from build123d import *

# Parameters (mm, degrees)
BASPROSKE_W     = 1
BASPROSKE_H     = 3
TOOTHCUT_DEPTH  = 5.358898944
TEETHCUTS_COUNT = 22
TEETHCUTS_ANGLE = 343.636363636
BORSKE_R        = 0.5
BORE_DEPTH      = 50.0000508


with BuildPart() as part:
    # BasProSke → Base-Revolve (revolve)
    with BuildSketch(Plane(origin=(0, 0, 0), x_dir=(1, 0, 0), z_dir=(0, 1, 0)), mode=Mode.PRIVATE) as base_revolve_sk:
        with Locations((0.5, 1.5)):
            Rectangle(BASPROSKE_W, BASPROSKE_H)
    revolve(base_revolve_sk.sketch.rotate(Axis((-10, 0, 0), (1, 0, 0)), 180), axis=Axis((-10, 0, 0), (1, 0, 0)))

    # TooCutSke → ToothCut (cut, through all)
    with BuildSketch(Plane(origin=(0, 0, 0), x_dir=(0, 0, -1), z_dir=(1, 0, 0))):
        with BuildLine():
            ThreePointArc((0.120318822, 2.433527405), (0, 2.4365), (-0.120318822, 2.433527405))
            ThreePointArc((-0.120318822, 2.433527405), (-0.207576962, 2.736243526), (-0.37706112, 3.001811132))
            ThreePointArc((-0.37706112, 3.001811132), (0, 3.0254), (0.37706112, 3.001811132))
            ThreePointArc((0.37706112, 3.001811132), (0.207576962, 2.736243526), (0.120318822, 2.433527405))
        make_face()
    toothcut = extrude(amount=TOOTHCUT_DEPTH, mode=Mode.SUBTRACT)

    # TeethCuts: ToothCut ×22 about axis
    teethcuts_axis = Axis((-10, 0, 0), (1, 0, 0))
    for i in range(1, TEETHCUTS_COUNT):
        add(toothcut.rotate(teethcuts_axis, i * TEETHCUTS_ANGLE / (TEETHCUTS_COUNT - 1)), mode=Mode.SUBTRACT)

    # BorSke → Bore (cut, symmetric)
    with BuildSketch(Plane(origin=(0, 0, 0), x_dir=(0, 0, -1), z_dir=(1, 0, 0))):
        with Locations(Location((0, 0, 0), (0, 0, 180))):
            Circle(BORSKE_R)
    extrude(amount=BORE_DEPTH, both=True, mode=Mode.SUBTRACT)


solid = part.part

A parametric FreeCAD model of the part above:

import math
import FreeCAD as App
import Part
import Sketcher
from FreeCAD import Vector

doc = App.newDocument("Part")
body = doc.addObject("PartDesign::Body", "Body")

# Sketch on XZ plane
sketch1 = body.newObject("Sketcher::SketchObject", "Sketch")
sketch1.AttachmentSupport = (doc.getObject("XZ_Plane"), [""])
sketch1.MapMode = "FlatFace"
sketch1.addGeometry([
    Part.LineSegment(Vector(0, -3, 0), Vector(0, 0, 0)),
    Part.LineSegment(Vector(0, 0, 0), Vector(1, 0, 0)),
    Part.LineSegment(Vector(1, 0, 0), Vector(1, -3, 0)),
    Part.LineSegment(Vector(1, -3, 0), Vector(0, -3, 0)),
], False)
sketch1.addConstraint([
    Sketcher.Constraint("Coincident", 0, 2, 1, 1),
    Sketcher.Constraint("Coincident", 1, 2, 2, 1),
    Sketcher.Constraint("Coincident", 2, 2, 3, 1),
    Sketcher.Constraint("Coincident", 3, 2, 0, 1),
    Sketcher.Constraint("Vertical", 0),
    Sketcher.Constraint("Horizontal", 1),
    Sketcher.Constraint("Vertical", 2),
    Sketcher.Constraint("Horizontal", 3),
    Sketcher.Constraint("Coincident", 0, 2, -1, 1),
    Sketcher.Constraint("DistanceX", 1, 1, 1, 2, 1.0),
    Sketcher.Constraint("DistanceY", 0, 1, 0, 2, 3.0),
])
revolution = body.newObject("PartDesign::Revolution", "Revolution")
revolution.Profile = sketch1
revolution.ReferenceAxis = (sketch1, ["H_Axis"])
revolution.Angle = 360

# Sketch on YZ plane
sketch2 = body.newObject("Sketcher::SketchObject", "Sketch001")
sketch2.AttachmentSupport = (doc.getObject("YZ_Plane"), [""])
sketch2.MapMode = "FlatFace"
sketch2.addGeometry([
    Part.ArcOfCircle(Part.Circle(Vector(0, 0, 0), Vector(0, 0, 1), 2.4365), math.radians(-2.830522), math.radians(2.830522)),
    Part.ArcOfCircle(Part.Circle(Vector(2.283355, -1.21002, 0), Vector(0, 0, 1), 1.1), math.radians(49.221054), math.radians(82.153429)),
    Part.ArcOfCircle(Part.Circle(Vector(0, 0, 0), Vector(0, 0, 1), 3.0254), math.radians(-7.159495), math.radians(7.159495)),
    Part.ArcOfCircle(Part.Circle(Vector(2.283355, 1.21002, 0), Vector(0, 0, 1), 1.1), math.radians(-82.153429), math.radians(-49.221054)),
], False)
sketch2.addConstraint([
    Sketcher.Constraint("Coincident", 0, 1, 1, 2),
    Sketcher.Constraint("Coincident", 1, 1, 2, 1),
    Sketcher.Constraint("Coincident", 2, 2, 3, 2),
    Sketcher.Constraint("Coincident", 3, 1, 0, 2),
    Sketcher.Constraint("Coincident", 0, 3, -1, 1),
    Sketcher.Constraint("Coincident", 2, 3, -1, 1),
    Sketcher.Constraint("Equal", 1, 3),
    Sketcher.Constraint("Symmetric", 1, 3, 3, 3, -1),
    Sketcher.Constraint("Radius", 1, 1.1),
    Sketcher.Constraint("Radius", 0, 2.4365),
    Sketcher.Constraint("Radius", 2, 3.0254),
    Sketcher.Constraint("DistanceY", 1, 3, 0, 1, 1.089701),
    Sketcher.Constraint("DistanceY", 1, 3, -1, 1, 1.21002),
])
pocket1 = body.newObject("PartDesign::Pocket", "Pocket")
pocket1.Profile = sketch2
pocket1.Type = "ThroughAll"
pocket1.Reversed = True
doc.recompute()

polarpattern = body.newObject("PartDesign::PolarPattern", "PolarPattern")
polarpattern.Originals = [pocket1]
polarpattern.Axis = (doc.getObject("X_Axis"), [""])
polarpattern.Angle = 360
polarpattern.Occurrences = 22
body.Tip = polarpattern

# Sketch on YZ plane
sketch3 = body.newObject("Sketcher::SketchObject", "Sketch002")
sketch3.AttachmentSupport = (doc.getObject("YZ_Plane"), [""])
sketch3.MapMode = "FlatFace"
sketch3.addGeometry(Part.Circle(Vector(0, 0, 0), Vector(0, 0, 1), 0.5), False)
sketch3.addConstraint([
    Sketcher.Constraint("Coincident", 0, 3, -1, 1),
    Sketcher.Constraint("Diameter", 0, 1.0),
])
pocket2 = body.newObject("PartDesign::Pocket", "Pocket001")
pocket2.Profile = sketch3
pocket2.Length = 100.000102
pocket2.Midplane = True

doc.recompute()
